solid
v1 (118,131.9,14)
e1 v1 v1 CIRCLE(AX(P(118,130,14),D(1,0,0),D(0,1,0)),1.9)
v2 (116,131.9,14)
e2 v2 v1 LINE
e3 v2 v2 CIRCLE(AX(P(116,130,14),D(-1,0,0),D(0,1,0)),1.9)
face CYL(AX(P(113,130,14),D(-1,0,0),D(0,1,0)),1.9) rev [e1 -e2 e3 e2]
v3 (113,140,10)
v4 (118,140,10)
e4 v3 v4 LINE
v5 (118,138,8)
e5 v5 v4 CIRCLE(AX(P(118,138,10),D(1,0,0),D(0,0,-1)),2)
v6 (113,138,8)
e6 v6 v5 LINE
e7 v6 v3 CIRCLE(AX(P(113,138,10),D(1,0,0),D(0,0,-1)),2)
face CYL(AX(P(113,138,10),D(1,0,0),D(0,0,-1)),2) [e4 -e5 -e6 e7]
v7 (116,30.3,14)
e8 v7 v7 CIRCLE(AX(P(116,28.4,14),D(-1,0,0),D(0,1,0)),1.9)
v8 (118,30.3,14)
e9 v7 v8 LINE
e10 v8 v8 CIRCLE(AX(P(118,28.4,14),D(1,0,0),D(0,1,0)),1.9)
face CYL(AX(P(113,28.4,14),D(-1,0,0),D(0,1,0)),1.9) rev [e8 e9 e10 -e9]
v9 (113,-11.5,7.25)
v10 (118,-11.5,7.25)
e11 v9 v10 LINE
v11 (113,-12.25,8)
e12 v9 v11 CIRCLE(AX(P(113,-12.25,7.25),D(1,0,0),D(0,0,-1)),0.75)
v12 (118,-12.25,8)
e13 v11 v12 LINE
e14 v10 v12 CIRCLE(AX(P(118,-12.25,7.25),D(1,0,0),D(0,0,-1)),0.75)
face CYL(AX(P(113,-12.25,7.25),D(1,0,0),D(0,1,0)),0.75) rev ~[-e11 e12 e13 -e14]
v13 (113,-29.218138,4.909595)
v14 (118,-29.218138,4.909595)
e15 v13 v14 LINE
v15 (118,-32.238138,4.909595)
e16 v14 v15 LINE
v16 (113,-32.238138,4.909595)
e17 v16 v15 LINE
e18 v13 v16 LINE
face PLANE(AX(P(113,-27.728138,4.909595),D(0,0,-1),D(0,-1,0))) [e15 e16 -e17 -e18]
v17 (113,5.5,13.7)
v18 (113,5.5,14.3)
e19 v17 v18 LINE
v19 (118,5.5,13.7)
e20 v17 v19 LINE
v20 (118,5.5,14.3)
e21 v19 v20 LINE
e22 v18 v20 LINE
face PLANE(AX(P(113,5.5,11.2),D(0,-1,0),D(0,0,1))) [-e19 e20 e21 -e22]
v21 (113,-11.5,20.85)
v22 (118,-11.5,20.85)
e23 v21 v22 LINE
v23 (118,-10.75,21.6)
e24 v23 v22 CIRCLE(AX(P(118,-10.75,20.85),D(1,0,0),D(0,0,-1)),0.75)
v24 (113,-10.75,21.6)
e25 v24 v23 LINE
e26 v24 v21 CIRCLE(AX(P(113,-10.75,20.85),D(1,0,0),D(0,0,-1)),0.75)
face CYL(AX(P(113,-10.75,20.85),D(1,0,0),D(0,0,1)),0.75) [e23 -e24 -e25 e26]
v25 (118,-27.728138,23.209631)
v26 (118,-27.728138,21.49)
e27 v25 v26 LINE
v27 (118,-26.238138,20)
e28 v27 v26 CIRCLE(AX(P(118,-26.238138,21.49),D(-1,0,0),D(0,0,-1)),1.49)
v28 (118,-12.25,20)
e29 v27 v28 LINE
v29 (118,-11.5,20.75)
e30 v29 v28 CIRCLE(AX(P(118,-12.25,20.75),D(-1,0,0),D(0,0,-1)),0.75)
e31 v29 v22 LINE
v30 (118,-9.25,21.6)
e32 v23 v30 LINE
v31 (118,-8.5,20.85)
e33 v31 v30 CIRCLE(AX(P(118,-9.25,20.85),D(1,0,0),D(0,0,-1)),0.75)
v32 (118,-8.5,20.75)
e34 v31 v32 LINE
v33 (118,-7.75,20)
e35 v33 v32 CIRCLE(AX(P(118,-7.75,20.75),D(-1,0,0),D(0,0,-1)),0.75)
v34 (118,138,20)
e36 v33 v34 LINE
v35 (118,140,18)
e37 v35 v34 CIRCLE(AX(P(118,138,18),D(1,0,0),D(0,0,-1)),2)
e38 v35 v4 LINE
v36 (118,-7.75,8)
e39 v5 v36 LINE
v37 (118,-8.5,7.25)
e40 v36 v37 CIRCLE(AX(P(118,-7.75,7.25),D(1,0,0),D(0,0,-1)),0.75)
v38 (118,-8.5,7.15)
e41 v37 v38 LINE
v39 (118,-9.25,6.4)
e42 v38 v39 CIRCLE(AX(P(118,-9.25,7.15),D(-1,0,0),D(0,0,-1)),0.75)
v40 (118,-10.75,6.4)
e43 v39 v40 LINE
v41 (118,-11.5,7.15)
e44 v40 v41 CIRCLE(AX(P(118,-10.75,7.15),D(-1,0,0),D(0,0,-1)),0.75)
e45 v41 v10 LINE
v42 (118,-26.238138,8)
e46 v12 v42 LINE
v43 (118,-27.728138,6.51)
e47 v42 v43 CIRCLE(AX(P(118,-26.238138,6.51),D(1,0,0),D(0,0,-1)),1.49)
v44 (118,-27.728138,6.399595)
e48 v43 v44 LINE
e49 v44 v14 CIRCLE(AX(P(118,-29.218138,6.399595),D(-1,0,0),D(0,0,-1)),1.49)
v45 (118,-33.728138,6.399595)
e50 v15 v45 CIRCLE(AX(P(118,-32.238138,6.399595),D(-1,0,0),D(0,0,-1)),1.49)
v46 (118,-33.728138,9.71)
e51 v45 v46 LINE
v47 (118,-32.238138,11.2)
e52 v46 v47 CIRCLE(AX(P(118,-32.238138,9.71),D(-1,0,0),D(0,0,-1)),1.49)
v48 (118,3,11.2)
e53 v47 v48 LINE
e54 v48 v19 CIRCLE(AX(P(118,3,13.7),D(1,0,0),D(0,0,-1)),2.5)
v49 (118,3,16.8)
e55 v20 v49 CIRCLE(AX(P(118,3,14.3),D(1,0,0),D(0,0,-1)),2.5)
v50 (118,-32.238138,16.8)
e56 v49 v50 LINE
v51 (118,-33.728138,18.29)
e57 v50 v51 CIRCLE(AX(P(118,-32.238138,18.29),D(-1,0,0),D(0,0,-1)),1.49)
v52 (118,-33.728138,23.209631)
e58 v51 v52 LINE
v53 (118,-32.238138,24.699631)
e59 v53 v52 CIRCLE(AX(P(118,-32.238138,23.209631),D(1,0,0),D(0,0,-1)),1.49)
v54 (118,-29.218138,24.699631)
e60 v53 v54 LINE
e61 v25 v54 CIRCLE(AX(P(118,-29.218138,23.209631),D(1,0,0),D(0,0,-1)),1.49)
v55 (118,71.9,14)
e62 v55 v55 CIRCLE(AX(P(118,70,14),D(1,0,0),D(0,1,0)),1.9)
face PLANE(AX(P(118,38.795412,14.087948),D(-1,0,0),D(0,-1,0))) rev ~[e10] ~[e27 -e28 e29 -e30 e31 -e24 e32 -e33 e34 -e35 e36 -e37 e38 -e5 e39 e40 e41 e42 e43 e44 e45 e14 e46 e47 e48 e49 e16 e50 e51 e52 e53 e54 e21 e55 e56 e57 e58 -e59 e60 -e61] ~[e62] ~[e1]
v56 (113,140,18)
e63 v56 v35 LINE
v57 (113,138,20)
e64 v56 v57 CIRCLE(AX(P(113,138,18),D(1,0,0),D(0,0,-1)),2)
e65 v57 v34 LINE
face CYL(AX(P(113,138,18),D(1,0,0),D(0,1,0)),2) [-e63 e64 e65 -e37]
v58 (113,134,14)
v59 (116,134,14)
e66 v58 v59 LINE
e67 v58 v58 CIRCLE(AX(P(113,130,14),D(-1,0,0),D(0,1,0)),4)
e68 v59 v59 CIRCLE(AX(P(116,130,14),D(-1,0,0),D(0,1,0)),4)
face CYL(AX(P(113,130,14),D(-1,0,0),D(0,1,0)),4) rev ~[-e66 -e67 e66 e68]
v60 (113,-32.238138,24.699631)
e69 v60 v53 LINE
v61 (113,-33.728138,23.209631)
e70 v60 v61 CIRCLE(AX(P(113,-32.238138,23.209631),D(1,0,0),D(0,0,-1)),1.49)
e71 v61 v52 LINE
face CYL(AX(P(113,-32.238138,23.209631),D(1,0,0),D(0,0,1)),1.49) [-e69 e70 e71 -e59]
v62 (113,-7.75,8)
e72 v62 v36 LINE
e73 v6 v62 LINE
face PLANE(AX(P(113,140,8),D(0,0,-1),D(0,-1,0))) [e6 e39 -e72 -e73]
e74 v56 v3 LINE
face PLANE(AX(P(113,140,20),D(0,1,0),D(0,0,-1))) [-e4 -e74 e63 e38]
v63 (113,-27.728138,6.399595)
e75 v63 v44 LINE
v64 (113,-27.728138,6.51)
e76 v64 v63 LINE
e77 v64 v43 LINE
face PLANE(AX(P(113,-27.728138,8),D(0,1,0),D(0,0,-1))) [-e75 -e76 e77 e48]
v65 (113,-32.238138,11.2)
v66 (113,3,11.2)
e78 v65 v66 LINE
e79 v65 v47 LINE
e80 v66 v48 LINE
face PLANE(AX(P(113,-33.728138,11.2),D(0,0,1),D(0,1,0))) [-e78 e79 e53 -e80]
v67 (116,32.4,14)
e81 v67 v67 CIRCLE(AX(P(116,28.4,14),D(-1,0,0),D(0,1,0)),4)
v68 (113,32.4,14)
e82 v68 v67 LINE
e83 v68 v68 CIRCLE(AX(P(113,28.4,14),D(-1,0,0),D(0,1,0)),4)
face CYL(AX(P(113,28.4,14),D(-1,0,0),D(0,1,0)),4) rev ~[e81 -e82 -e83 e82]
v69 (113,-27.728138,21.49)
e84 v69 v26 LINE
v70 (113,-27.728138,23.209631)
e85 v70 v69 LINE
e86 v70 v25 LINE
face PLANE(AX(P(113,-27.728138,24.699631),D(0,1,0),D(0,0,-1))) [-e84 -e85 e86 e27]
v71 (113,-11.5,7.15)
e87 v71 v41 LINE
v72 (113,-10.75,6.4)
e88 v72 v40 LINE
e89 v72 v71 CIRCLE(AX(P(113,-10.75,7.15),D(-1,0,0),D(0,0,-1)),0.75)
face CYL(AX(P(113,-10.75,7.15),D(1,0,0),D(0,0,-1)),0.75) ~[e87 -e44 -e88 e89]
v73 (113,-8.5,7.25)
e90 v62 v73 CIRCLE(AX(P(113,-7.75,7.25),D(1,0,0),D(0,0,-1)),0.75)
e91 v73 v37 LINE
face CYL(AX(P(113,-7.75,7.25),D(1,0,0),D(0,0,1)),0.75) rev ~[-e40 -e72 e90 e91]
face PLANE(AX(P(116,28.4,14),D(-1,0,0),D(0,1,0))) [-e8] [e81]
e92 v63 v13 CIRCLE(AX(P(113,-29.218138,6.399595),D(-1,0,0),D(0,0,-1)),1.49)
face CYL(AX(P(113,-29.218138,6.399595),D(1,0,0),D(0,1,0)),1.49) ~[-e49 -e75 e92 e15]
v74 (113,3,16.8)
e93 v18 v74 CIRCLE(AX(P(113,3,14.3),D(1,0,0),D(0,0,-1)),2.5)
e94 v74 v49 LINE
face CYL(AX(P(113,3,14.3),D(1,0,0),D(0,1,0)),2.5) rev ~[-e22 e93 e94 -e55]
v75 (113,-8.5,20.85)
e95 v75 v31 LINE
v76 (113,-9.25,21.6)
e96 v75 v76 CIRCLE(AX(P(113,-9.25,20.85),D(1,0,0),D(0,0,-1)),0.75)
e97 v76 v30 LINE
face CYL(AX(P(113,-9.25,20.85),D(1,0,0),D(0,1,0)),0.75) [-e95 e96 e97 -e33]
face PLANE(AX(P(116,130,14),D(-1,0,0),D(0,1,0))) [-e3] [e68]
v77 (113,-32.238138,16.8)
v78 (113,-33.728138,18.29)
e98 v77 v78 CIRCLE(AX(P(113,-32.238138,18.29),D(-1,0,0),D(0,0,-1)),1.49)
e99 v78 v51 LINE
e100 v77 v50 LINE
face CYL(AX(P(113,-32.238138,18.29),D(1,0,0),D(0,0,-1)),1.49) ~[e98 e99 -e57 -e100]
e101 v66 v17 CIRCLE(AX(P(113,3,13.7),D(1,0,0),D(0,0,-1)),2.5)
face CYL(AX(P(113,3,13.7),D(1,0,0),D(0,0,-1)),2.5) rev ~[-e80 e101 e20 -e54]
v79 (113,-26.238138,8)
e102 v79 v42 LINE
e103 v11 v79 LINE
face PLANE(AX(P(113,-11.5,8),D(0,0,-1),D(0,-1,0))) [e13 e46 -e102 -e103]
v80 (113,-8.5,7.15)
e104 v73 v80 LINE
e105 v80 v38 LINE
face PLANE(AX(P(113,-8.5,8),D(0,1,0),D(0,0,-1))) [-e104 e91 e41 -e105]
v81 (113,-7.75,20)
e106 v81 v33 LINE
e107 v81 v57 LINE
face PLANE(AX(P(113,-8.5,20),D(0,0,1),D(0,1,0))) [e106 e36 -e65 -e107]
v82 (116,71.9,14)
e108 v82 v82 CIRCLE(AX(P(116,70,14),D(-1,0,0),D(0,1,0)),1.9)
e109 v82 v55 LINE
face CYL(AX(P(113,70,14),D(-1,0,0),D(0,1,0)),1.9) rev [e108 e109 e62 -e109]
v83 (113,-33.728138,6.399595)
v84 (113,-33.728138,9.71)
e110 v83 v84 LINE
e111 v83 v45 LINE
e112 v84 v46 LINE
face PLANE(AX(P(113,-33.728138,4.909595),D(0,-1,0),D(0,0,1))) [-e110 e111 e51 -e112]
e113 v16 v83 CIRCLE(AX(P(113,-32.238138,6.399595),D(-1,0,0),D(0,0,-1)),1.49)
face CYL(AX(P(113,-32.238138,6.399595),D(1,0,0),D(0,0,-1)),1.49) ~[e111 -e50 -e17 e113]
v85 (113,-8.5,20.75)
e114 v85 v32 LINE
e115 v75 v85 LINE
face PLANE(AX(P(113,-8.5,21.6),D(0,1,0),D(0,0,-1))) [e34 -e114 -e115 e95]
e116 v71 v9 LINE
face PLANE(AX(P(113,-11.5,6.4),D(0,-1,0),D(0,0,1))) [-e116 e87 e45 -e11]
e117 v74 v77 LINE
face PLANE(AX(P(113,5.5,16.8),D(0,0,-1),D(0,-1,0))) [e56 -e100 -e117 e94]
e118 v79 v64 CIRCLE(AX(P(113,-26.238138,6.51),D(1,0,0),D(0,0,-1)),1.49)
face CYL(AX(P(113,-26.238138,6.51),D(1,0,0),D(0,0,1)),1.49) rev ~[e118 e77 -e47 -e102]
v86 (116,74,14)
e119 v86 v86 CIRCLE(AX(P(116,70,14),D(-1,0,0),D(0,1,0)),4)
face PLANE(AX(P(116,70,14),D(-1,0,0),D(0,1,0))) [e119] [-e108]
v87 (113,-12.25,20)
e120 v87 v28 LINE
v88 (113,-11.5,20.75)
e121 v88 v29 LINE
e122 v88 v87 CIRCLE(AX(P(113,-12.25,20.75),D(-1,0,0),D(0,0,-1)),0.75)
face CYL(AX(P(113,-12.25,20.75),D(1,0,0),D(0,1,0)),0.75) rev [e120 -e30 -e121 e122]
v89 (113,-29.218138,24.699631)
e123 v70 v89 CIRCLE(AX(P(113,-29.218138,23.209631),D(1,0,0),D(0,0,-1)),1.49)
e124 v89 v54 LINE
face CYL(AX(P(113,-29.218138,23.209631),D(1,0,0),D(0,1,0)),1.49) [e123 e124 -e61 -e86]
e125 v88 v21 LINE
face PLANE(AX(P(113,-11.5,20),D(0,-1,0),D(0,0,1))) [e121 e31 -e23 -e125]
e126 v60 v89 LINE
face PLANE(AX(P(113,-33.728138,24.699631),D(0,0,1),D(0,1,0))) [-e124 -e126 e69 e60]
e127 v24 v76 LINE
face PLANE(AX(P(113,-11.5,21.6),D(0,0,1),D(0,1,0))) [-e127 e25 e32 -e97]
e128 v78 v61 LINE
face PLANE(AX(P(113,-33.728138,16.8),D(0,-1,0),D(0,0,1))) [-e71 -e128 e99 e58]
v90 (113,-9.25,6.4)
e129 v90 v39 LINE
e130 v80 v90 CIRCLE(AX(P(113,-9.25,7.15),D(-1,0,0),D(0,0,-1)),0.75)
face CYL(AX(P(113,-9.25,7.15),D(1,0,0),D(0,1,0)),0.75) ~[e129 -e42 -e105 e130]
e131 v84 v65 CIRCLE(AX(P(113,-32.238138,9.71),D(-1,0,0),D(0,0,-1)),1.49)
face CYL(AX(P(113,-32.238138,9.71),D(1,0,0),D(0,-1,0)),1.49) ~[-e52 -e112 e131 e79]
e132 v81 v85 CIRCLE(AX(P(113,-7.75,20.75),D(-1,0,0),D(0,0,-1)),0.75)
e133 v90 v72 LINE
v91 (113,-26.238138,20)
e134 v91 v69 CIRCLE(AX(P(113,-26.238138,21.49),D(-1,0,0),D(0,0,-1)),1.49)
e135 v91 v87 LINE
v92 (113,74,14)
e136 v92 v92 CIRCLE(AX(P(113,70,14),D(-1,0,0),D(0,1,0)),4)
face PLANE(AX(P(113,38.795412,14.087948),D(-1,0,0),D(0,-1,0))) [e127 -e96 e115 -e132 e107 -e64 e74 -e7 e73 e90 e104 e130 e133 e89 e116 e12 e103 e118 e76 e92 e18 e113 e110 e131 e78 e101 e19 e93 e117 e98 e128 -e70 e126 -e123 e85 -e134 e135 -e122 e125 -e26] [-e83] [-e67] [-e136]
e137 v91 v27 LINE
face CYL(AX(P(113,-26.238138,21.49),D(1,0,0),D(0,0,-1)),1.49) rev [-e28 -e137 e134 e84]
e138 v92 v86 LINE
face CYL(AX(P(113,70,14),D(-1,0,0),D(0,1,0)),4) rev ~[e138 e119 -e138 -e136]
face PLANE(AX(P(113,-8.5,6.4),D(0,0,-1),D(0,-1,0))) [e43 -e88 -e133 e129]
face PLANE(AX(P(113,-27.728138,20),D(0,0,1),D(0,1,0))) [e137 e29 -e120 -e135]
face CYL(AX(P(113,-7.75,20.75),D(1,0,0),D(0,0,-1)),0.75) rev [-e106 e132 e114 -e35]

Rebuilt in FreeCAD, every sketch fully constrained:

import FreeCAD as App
import Part
import Sketcher

V = App.Vector


def edges_at(feature, points):
    """Names of the edges that pass closest to the given points."""
    edges = feature.Shape.Edges
    near = lambda p: min(range(len(edges)), key=lambda i: edges[i].distToShape(Part.Vertex(*p))[0])
    return sorted({f"Edge{near(p) + 1}" for p in points})

doc = App.newDocument("Part")
body = doc.addObject("PartDesign::Body", "Body")

sketch1 = doc.addObject("Sketcher::SketchObject", "Sketch")
body.addObject(sketch1)
sketch1.AttachmentSupport = (doc.XZ_Plane, [""])
sketch1.MapMode = "FlatFace"
sketch1.addGeometry([
    Part.LineSegment(V(-144.5, 0, 0), V(4, 0, 0)),
    Part.LineSegment(V(4, 0, 0), V(4, 12, 0)),
    Part.LineSegment(V(4, 12, 0), V(-144.5, 12, 0)),
    Part.LineSegment(V(-144.5, 12, 0), V(-144.5, 13.6, 0)),
    Part.LineSegment(V(-144.5, 13.6, 0), V(-147.5, 13.6, 0)),
    Part.LineSegment(V(-147.5, 13.6, 0), V(-147.5, 12, 0)),
    Part.LineSegment(V(-147.5, 12, 0), V(-163.7, 12, 0)),
    Part.LineSegment(V(-163.7, 12, 0), V(-163.7, 16.7, 0)),
    Part.LineSegment(V(-163.7, 16.7, 0), V(-169.7, 16.7, 0)),
    Part.LineSegment(V(-169.7, 16.7, 0), V(-169.7, 8.8, 0)),
    Part.LineSegment(V(-169.7, 8.8, 0), V(-130.5, 8.8, 0)),
    Part.LineSegment(V(-130.5, 8.8, 0), V(-130.5, 3.2, 0)),
    Part.LineSegment(V(-130.5, 3.2, 0), V(-169.7, 3.2, 0)),
    Part.LineSegment(V(-169.7, 3.2, 0), V(-169.7, -3.1, 0)),
    Part.LineSegment(V(-169.7, -3.1, 0), V(-163.7, -3.1, 0)),
    Part.LineSegment(V(-163.7, -3.1, 0), V(-163.7, 0, 0)),
    Part.LineSegment(V(-163.7, 0, 0), V(-147.5, 0, 0)),
    Part.LineSegment(V(-147.5, 0, 0), V(-147.5, -1.6, 0)),
    Part.LineSegment(V(-147.5, -1.6, 0), V(-144.5, -1.6, 0)),
    Part.LineSegment(V(-144.5, -1.6, 0), V(-144.5, 0, 0)),
    Part.Circle(V(-6, 6, 0), V(0, 0, 1), 1.9),
    Part.Circle(V(-66, 6, 0), V(0, 0, 1), 1.9),
    Part.Circle(V(-107.6, 6, 0), V(0, 0, 1), 1.9),
], False)
sketch1.addConstraint([
    Sketcher.Constraint("Coincident", 0, 2, 1, 1),
    Sketcher.Constraint("Coincident", 1, 2, 2, 1),
    Sketcher.Constraint("Coincident", 2, 2, 3, 1),
    Sketcher.Constraint("Coincident", 3, 2, 4, 1),
    Sketcher.Constraint("Coincident", 4, 2, 5, 1),
    Sketcher.Constraint("Coincident", 5, 2, 6, 1),
    Sketcher.Constraint("Coincident", 6, 2, 7, 1),
    Sketcher.Constraint("Coincident", 7, 2, 8, 1),
    Sketcher.Constraint("Coincident", 8, 2, 9, 1),
    Sketcher.Constraint("Coincident", 9, 2, 10, 1),
    Sketcher.Constraint("Coincident", 10, 2, 11, 1),
    Sketcher.Constraint("Coincident", 11, 2, 12, 1),
    Sketcher.Constraint("Coincident", 12, 2, 13, 1),
    Sketcher.Constraint("Coincident", 13, 2, 14, 1),
    Sketcher.Constraint("Coincident", 14, 2, 15, 1),
    Sketcher.Constraint("Coincident", 15, 2, 16, 1),
    Sketcher.Constraint("Coincident", 16, 2, 17, 1),
    Sketcher.Constraint("Coincident", 17, 2, 18, 1),
    Sketcher.Constraint("Coincident", 18, 2, 19, 1),
    Sketcher.Constraint("Coincident", 19, 2, 0, 1),
    Sketcher.Constraint("Horizontal", 0),
    Sketcher.Constraint("Vertical", 1),
    Sketcher.Constraint("Horizontal", 2),
    Sketcher.Constraint("Vertical", 3),
    Sketcher.Constraint("Horizontal", 4),
    Sketcher.Constraint("Vertical", 5),
    Sketcher.Constraint("Horizontal", 6),
    Sketcher.Constraint("Vertical", 7),
    Sketcher.Constraint("Horizontal", 8),
    Sketcher.Constraint("Vertical", 9),
    Sketcher.Constraint("Horizontal", 10),
    Sketcher.Constraint("Vertical", 11),
    Sketcher.Constraint("Horizontal", 12),
    Sketcher.Constraint("Vertical", 13),
    Sketcher.Constraint("Horizontal", 14),
    Sketcher.Constraint("Vertical", 15),
    Sketcher.Constraint("Horizontal", 16),
    Sketcher.Constraint("Vertical", 17),
    Sketcher.Constraint("Horizontal", 18),
    Sketcher.Constraint("Vertical", 19),
    Sketcher.Constraint("Equal", 20, 21),
    Sketcher.Constraint("Equal", 21, 22),
    Sketcher.Constraint("PointOnObject", 0, 2, -1),
    Sketcher.Constraint("PointOnObject", 15, 2, -1),
    Sketcher.Constraint("Horizontal", 20, 3, 21, 3),
    Sketcher.Constraint("Horizontal", 21, 3, 22, 3),
    Sketcher.Constraint("Horizontal", 2, 2, 5, 2),
    Sketcher.Constraint("Vertical", 9, 2, 12, 2),
    Sketcher.Constraint("Vertical", 7, 2, 14, 2),
    Sketcher.Constraint("Vertical", 5, 2, 16, 2),
    Sketcher.Constraint("Vertical", 3, 2, 18, 2),
    Sketcher.Constraint("Equal", 5, 17),
    Sketcher.Constraint("Diameter", 20, 3.8),
    Sketcher.Constraint("DistanceX", 4, 2, 4, 1, 3.0),
    Sketcher.Constraint("DistanceX", 8, 2, 8, 1, 6.0),
    Sketcher.Constraint("DistanceY", 1, 1, 1, 2, 12.0),
    Sketcher.Constraint("DistanceX", 0, 1, 0, 2, 148.5),
    Sketcher.Constraint("DistanceY", 3, 1, 3, 2, 1.6),
    Sketcher.Constraint("DistanceY", 11, 2, 11, 1, 5.6),
    Sketcher.Constraint("DistanceX", 20, 3, -1, 1, 6.0),
    Sketcher.Constraint("DistanceY", -1, 1, 20, 3, 6.0),
    Sketcher.Constraint("DistanceX", 21, 3, -1, 1, 66.0),
    Sketcher.Constraint("DistanceX", -1, 1, 0, 2, 4.0),
    Sketcher.Constraint("DistanceX", 2, 2, 10, 2, 14.0),
    Sketcher.Constraint("DistanceX", 22, 3, -1, 1, 107.6),
    Sketcher.Constraint("DistanceY", -1, 1, 9, 2, 8.8),
    Sketcher.Constraint("DistanceX", 6, 2, 6, 1, 16.228138),
    Sketcher.Constraint("DistanceY", 7, 1, 7, 2, 4.699631),
    Sketcher.Constraint("DistanceY", 13, 2, 13, 1, 6.290405),
])
pad1 = doc.addObject("PartDesign::Pad", "Pad")
body.addObject(pad1)
pad1.Profile = sketch1
pad1.Length = 5

sketch2 = doc.addObject("Sketcher::SketchObject", "Sketch001")
body.addObject(sketch2)
sketch2.AttachmentSupport = (doc.XZ_Plane, [""])
sketch2.MapMode = "FlatFace"
sketch2.addGeometry([
    Part.Circle(V(-107.6, 6, 0), V(0, 0, 1), 4),
    Part.Circle(V(-66, 6, 0), V(0, 0, 1), 4),
    Part.Circle(V(-6, 6, 0), V(0, 0, 1), 4),
], False)
sketch2.addConstraint([
    Sketcher.Constraint("Equal", 0, 1),
    Sketcher.Constraint("Equal", 1, 2),
    Sketcher.Constraint("Horizontal", 0, 3, 1, 3),
    Sketcher.Constraint("Horizontal", 1, 3, 2, 3),
    Sketcher.Constraint("Diameter", 0, 8.0),
    Sketcher.Constraint("DistanceY", -1, 1, 0, 3, 6.0),
    Sketcher.Constraint("DistanceX", 1, 3, -1, 1, 66.0),
    Sketcher.Constraint("DistanceX", 2, 3, -1, 1, 6.0),
    Sketcher.Constraint("DistanceX", 0, 3, -1, 1, 107.6),
])
pocket1 = doc.addObject("PartDesign::Pocket", "Pocket")
body.addObject(pocket1)
pocket1.Profile = sketch2
pocket1.Length = 3
pocket1.Reversed = True
doc.recompute()

fillet = doc.addObject("PartDesign::Fillet", "Fillet")
body.addObject(fillet)
fillet.Base = (pocket1, edges_at(pocket1, [(4, -2.5, 12), (4, -2.5, 0)]))
fillet.Radius = 2
doc.recompute()

fillet2 = doc.addObject("PartDesign::Fillet", "Fillet001")
body.addObject(fillet2)
fillet2.Base = (fillet, edges_at(fillet, [
    (-147.5, -2.5, 12),
    (-147.5, -2.5, 13.6),
    (-144.5, -2.5, 13.6),
    (-144.5, -2.5, 12),
    (-144.5, -2.5, -1.6),
    (-147.5, -2.5, 0),
    (-147.5, -2.5, -1.6),
    (-144.5, -2.5, 0),
]))
fillet2.Radius = 0.75
doc.recompute()

fillet3 = doc.addObject("PartDesign::Fillet", "Fillet002")
body.addObject(fillet3)
fillet3.Base = (fillet2, edges_at(fillet2, [
    (-163.728, -2.5, 0),
    (-163.728, -2.5, -3.09),
    (-169.728, -2.5, -3.09),
    (-169.728, -2.5, 3.2),
    (-169.728, -2.5, 16.7),
    (-163.728, -2.5, 16.7),
    (-163.728, -2.5, 12),
    (-169.728, -2.5, 8.8),
]))
fillet3.Radius = 1.49
doc.recompute()

fillet4 = doc.addObject("PartDesign::Fillet", "Fillet003")
body.addObject(fillet4)
fillet4.Base = (fillet3, edges_at(fillet3, [(-130.5, -2.5, 8.8), (-130.5, -2.5, 3.2)]))
fillet4.Radius = 2.5
body2 = doc.addObject("PartDesign::Body", "Body001")
doc.recompute()

body.Placement = App.Placement(V(113, 136, 8), App.Rotation(V(0, 0, -1), 270))
boolean = doc.addObject("PartDesign::Boolean", "Boolean")
body2.addObject(boolean)
boolean.Type = "Fuse"
boolean.addObjects([body])

doc.recompute()
